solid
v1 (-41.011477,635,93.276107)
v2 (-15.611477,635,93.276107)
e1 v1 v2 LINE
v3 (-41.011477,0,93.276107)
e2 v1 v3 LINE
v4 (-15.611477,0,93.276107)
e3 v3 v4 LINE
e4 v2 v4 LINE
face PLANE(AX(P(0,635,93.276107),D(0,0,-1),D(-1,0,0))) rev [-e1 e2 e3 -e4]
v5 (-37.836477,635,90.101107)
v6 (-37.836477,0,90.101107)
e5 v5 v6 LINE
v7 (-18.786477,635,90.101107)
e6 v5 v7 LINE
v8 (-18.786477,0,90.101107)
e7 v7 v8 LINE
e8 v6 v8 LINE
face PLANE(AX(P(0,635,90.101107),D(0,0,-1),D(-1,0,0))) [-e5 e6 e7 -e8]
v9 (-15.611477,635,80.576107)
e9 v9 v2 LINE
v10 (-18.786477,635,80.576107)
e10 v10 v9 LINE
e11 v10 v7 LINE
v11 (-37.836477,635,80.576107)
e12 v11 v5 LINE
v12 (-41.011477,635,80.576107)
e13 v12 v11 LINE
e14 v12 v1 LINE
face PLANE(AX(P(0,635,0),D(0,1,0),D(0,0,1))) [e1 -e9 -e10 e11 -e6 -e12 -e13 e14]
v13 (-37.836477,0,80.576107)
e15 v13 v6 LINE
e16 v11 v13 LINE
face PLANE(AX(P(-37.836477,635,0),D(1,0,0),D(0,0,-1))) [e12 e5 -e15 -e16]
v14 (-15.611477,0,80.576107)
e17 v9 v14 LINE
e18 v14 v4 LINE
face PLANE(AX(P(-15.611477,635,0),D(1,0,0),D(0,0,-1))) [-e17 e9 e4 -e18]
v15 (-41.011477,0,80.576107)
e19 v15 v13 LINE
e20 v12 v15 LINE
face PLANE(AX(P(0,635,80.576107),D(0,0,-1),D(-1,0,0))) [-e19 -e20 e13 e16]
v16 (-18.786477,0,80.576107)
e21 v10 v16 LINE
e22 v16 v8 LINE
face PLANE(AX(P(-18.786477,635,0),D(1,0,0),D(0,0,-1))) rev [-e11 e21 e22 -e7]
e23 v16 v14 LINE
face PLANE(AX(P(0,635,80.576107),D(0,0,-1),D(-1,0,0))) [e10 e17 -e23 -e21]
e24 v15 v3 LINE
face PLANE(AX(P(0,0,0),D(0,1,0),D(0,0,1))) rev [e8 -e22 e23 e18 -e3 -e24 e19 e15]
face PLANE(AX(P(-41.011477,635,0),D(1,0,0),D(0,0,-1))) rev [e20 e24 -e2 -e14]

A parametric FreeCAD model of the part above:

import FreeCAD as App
import Part
import Sketcher
Q = App.Units.Quantity

doc = App.newDocument("Part")
body = doc.addObject("PartDesign::Body", "Body")

sketch1 = body.newObject("Sketcher::SketchObject", "Sketch")
sketch1.AttachmentSupport = (doc.getObject("XZ_Plane"), [""])
sketch1.MapMode = "FlatFace"
sketch1.addGeometry([
    Part.LineSegment(App.Vector(-37.8, 80.6, 0), App.Vector(-41, 80.6, 0)),
    Part.LineSegment(App.Vector(-41, 80.6, 0), App.Vector(-41, 93.3, 0)),
    Part.LineSegment(App.Vector(-41, 93.3, 0), App.Vector(-15.6, 93.3, 0)),
    Part.LineSegment(App.Vector(-15.6, 93.3, 0), App.Vector(-15.6, 80.6, 0)),
    Part.LineSegment(App.Vector(-15.6, 80.6, 0), App.Vector(-18.8, 80.6, 0)),
    Part.LineSegment(App.Vector(-18.8, 80.6, 0), App.Vector(-18.8, 90.1, 0)),
    Part.LineSegment(App.Vector(-18.8, 90.1, 0), App.Vector(-37.8, 90.1, 0)),
    Part.LineSegment(App.Vector(-37.8, 90.1, 0), App.Vector(-37.8, 80.6, 0)),
], False)
sketch1.addConstraint([
    Sketcher.Constraint("Coincident", 0, 2, 1, 1),
    Sketcher.Constraint("Coincident", 1, 2, 2, 1),
    Sketcher.Constraint("Coincident", 2, 2, 3, 1),
    Sketcher.Constraint("Coincident", 3, 2, 4, 1),
    Sketcher.Constraint("Coincident", 4, 2, 5, 1),
    Sketcher.Constraint("Coincident", 5, 2, 6, 1),
    Sketcher.Constraint("Coincident", 6, 2, 7, 1),
    Sketcher.Constraint("Coincident", 7, 2, 0, 1),
    Sketcher.Constraint("Horizontal", 0),
    Sketcher.Constraint("Vertical", 1),
    Sketcher.Constraint("Horizontal", 2),
    Sketcher.Constraint("Vertical", 3),
    Sketcher.Constraint("Horizontal", 4),
    Sketcher.Constraint("Vertical", 5),
    Sketcher.Constraint("Horizontal", 6),
    Sketcher.Constraint("Vertical", 7),
    Sketcher.Constraint("Horizontal", 0, 2, 3, 2),
    Sketcher.Constraint("Equal", 0, 4),
    Sketcher.Constraint("DistanceX", 2, 1, 2, 2, Q("1 in")),
    Sketcher.Constraint("DistanceY", 1, 1, 1, 2, Q("0.5 in")),
    Sketcher.Constraint("DistanceX", 6, 2, 6, 1, Q("0.75 in")),
    Sketcher.Constraint("DistanceY", 5, 1, 5, 2, Q("0.375 in")),
    Sketcher.Constraint("DistanceX", 0, 2, -1, 1, Q("41.011477 mm")),
    Sketcher.Constraint("DistanceY", -1, 1, 0, 2, Q("80.576107 mm")),
])
pad1 = body.newObject("PartDesign::Pad", "Pad")
pad1.Profile = sketch1
pad1.Length = Q("25 in")
pad1.Reversed = True

doc.recompute()
